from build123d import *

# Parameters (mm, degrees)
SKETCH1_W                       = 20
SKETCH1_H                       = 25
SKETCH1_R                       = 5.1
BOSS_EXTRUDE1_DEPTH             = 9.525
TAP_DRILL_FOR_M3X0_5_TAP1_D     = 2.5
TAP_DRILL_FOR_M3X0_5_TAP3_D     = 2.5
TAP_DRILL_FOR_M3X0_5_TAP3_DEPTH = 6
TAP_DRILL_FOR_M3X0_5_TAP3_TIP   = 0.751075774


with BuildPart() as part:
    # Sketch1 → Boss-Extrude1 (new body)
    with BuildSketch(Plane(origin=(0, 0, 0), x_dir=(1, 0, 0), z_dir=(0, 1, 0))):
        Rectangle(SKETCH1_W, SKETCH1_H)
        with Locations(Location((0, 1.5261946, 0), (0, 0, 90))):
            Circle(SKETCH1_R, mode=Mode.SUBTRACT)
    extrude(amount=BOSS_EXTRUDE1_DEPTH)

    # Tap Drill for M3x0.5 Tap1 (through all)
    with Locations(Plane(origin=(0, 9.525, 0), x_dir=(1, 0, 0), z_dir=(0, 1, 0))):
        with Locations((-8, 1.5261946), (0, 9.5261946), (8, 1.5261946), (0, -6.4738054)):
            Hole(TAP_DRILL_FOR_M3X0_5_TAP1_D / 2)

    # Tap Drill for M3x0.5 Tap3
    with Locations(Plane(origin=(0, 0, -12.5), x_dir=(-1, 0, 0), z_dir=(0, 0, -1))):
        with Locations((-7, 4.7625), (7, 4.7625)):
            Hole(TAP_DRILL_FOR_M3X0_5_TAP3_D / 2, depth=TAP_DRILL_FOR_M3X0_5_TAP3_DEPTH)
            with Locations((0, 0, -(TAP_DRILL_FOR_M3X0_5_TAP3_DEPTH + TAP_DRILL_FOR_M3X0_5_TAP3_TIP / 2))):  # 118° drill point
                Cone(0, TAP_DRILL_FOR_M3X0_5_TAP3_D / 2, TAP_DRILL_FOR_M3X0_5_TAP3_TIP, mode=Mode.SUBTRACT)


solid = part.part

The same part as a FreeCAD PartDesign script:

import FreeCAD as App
import Part
import Sketcher

V = App.Vector

doc = App.newDocument("Part")
body = doc.addObject("PartDesign::Body", "Body")

# Sketch on XZ plane
sketch1 = doc.addObject("Sketcher::SketchObject", "Sketch")
body.addObject(sketch1)
sketch1.AttachmentSupport = (doc.XZ_Plane, [""])
sketch1.MapMode = "FlatFace"
sketch1.addGeometry([
    Part.LineSegment(V(-10, -12, 0), V(-10, 12, 0)),  # 0
    Part.LineSegment(V(-10, 12, 0), V(10, 12, 0)),  # 1
    Part.LineSegment(V(10, 12, 0), V(10, -12, 0)),  # 2
    Part.LineSegment(V(10, -12, 0), V(-10, -12, 0)),  # 3
    Part.Circle(V(0, -2, 0), V(0, 0, 1), 5),  # 4
], False)
sketch1.addConstraint([
    Sketcher.Constraint("Coincident", 0, 2, 1, 1),
    Sketcher.Constraint("Coincident", 1, 2, 2, 1),
    Sketcher.Constraint("Coincident", 2, 2, 3, 1),
    Sketcher.Constraint("Coincident", 3, 2, 0, 1),
    Sketcher.Constraint("Vertical", 0),
    Sketcher.Constraint("Horizontal", 1),
    Sketcher.Constraint("Vertical", 2),
    Sketcher.Constraint("Horizontal", 3),
    Sketcher.Constraint("Symmetric", 0, 2, 2, 2, -1, 1),
    Sketcher.Constraint("PointOnObject", 4, 3, -2),
    Sketcher.Constraint("Diameter", 4, 10.2),
    Sketcher.Constraint("DistanceX", 1, 1, 1, 2, 20.0),
    Sketcher.Constraint("DistanceY", 0, 1, 0, 2, 25.0),
    Sketcher.Constraint("DistanceY", 4, 3, -1, 1, 1.526195),
])
pad1 = doc.addObject("PartDesign::Pad", "Pad")
body.addObject(pad1)
pad1.Profile = sketch1
pad1.Length = 9.525
pad1.Reversed = True

# Sketch on XZ plane
sketch2 = doc.addObject("Sketcher::SketchObject", "Sketch001")
body.addObject(sketch2)
sketch2.AttachmentSupport = (doc.XZ_Plane, [""])
sketch2.MapMode = "FlatFace"
sketch2.AttachmentOffset = App.Placement(V(0, 0, -9.525), App.Rotation())
sketch2.addGeometry([
    Part.Circle(V(-8, -1.5, 0), V(0, 0, 1), 1.2),
    Part.Circle(V(0, -9.5, 0), V(0, 0, 1), 1.2),
    Part.Circle(V(8, -1.5, 0), V(0, 0, 1), 1.2),
    Part.Circle(V(0, 6.5, 0), V(0, 0, 1), 1.2),
], False)
sketch2.addConstraint([
    Sketcher.Constraint("Equal", 0, 1),
    Sketcher.Constraint("Equal", 1, 2),
    Sketcher.Constraint("Equal", 2, 3),
    Sketcher.Constraint("Symmetric", 0, 3, 2, 3, -2),
    Sketcher.Constraint("PointOnObject", 1, 3, -2),
    Sketcher.Constraint("PointOnObject", 3, 3, -2),
    Sketcher.Constraint("Diameter", 0, 2.5),
    Sketcher.Constraint("DistanceX", 0, 3, -1, 1, 8.0),
    Sketcher.Constraint("DistanceY", 1, 3, 0, 3, 8.0),
    Sketcher.Constraint("DistanceY", 0, 3, 3, 3, 8.0),
    Sketcher.Constraint("DistanceY", 0, 3, -1, 1, 1.526195),
])
doc.recompute()
hole = doc.addObject("PartDesign::Hole", "Hole")
body.addObject(hole)
hole.Profile = sketch2
hole.ThreadType = "None"
hole.Diameter = 2.5
hole.DepthType = "ThroughAll"
hole.Reversed = True

# Sketch on XY plane
sketch3 = doc.addObject("Sketcher::SketchObject", "Sketch002")
body.addObject(sketch3)
sketch3.AttachmentSupport = (doc.XY_Plane, [""])
sketch3.MapMode = "FlatFace"
sketch3.AttachmentOffset = App.Placement(V(0, 0, -12.5), App.Rotation())
sketch3.addGeometry([
    Part.Circle(V(7, 4.8, 0), V(0, 0, 1), 1.2),
    Part.Circle(V(-7, 4.8, 0), V(0, 0, 1), 1.2),
], False)
sketch3.addConstraint([
    Sketcher.Constraint("Equal", 0, 1),
    Sketcher.Constraint("Symmetric", 0, 3, 1, 3, -2),
    Sketcher.Constraint("Diameter", 0, 2.5),
    Sketcher.Constraint("DistanceX", -1, 1, 0, 3, 7.0),
    Sketcher.Constraint("DistanceY", -1, 1, 0, 3, 4.7625),
])
doc.recompute()
hole2 = doc.addObject("PartDesign::Hole", "Hole001")
body.addObject(hole2)
hole2.Profile = sketch3
hole2.ThreadType = "None"
hole2.Diameter = 2.5
hole2.DepthType = "Dimension"
hole2.Depth = 6
hole2.DrillPoint = "Angled"
hole2.DrillPointAngle = 118
hole2.Reversed = True

doc.recompute()
